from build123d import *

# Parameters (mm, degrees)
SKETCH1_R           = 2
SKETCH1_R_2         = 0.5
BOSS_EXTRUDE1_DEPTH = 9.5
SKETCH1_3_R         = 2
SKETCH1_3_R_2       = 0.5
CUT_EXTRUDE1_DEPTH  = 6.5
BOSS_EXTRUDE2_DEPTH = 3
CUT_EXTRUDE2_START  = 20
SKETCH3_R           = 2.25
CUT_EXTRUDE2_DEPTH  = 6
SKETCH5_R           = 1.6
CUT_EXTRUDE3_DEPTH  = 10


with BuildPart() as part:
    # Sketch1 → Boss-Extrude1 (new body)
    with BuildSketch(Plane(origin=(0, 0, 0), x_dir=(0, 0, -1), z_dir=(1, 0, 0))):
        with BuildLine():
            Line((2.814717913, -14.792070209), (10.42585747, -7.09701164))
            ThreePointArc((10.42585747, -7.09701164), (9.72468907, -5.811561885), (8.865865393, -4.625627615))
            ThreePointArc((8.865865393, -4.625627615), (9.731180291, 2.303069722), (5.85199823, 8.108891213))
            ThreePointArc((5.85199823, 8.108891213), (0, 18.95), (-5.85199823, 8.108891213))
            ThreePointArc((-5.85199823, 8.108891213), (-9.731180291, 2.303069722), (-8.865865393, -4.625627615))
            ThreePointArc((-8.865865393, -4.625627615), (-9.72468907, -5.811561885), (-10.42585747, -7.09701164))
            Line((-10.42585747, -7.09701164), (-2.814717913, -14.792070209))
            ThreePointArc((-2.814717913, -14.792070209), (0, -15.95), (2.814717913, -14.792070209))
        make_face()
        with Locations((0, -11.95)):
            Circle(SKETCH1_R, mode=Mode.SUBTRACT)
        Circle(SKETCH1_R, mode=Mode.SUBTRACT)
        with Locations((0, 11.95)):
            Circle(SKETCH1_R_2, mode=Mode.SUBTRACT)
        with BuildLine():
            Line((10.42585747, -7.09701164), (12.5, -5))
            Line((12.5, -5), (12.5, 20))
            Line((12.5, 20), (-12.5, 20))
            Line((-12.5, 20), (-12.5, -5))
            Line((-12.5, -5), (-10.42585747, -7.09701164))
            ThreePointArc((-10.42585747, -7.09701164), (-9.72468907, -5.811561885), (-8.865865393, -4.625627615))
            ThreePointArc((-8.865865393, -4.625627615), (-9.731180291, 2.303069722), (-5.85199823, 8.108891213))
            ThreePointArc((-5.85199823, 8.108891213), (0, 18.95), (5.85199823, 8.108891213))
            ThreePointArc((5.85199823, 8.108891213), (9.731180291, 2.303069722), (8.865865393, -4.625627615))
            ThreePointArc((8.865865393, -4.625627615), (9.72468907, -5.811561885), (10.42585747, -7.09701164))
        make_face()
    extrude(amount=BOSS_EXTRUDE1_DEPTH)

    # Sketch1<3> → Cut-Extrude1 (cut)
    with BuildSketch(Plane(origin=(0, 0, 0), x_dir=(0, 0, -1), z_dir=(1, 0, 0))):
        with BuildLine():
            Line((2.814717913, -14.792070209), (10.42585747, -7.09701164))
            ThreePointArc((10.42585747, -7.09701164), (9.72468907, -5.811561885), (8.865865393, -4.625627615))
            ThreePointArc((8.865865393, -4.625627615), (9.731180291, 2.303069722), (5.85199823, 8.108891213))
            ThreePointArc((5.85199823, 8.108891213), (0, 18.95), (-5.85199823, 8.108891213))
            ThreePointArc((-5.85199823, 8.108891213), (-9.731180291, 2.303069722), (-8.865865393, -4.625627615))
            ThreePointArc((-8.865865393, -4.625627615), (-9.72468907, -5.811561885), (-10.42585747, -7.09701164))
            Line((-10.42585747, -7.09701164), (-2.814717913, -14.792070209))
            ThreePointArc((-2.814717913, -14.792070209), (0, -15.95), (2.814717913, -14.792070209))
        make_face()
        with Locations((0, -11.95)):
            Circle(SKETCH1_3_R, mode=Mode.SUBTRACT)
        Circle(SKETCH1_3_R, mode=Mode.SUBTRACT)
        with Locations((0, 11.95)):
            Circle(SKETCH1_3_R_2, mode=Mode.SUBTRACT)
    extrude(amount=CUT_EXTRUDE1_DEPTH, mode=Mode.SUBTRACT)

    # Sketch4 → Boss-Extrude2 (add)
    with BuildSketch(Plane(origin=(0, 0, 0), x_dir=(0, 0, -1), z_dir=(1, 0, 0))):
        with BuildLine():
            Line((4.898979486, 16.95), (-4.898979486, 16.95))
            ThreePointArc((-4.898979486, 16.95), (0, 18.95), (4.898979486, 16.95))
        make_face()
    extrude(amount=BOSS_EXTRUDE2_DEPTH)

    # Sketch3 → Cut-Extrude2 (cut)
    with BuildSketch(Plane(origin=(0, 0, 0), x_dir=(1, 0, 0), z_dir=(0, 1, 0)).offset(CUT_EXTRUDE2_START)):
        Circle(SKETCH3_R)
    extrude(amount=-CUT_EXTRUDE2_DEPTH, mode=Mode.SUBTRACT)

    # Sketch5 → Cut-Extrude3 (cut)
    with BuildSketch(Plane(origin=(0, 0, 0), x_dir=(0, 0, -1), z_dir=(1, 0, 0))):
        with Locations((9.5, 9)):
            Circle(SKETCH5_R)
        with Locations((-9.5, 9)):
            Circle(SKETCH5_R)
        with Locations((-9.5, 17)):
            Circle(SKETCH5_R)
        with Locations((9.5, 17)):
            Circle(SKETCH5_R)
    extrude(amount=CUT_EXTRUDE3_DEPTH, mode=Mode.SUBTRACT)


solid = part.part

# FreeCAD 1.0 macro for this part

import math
import FreeCAD as App
import Part
import Sketcher

V = App.Vector
Q = App.Units.Quantity

doc = App.newDocument("Part")
params = doc.addObject("Spreadsheet::Sheet", "Params")
for row, (alias, value) in enumerate([
    ("sketch1_diameter", "4 mm"),
    ("sketch1_diameter2", "1 mm"),
    ("sketch1_radius", "4 mm"),
    ("sketch1_width", "25 mm"),
    ("pad1_length", "9.5 mm"),
    ("sketch2_diameter", "4 mm"),
    ("sketch2_diameter2", "1 mm"),
    ("sketch2_radius", "10 mm"),
    ("sketch2_radius2", "7 mm"),
    ("sketch2_radius3", "4 mm"),
    ("pocket1_length", "6.5 mm"),
    ("sketch3_radius", "7 mm"),
    ("pad2_length", "3 mm"),
    ("sketch4_diameter", "4.5 mm"),
    ("pocket2_length", "6 mm"),
    ("sketch5_diameter", "3.2 mm"),
    ("pocket3_length", "10 mm"),
], start=1):
    params.set(f"A{row}", alias)
    params.set(f"B{row}", "=" + value)
    params.setAlias(f"B{row}", alias)

body = doc.addObject("PartDesign::Body", "Body")

# Sketch on YZ plane
sketch1 = body.newObject("Sketcher::SketchObject", "Sketch")
sketch1.AttachmentSupport = (doc.getObject("YZ_Plane"), [""])
sketch1.MapMode = "FlatFace"
sketch1.addGeometry(Part.LineSegment(V(-14.8, -2.8, 0), V(-7.1, -10.4, 0)), False)
sketch1.addGeometry(Part.LineSegment(V(-7.1, -10.4, 0), V(-5, -12.5, 0)), False)
sketch1.addGeometry(Part.LineSegment(V(-5, -12.5, 0), V(20, -12.5, 0)), False)
sketch1.addGeometry(Part.LineSegment(V(20, -12.5, 0), V(20, 12.5, 0)), False)
sketch1.addGeometry(Part.LineSegment(V(20, 12.5, 0), V(-5, 12.5, 0)), False)
sketch1.addGeometry(Part.LineSegment(V(-5, 12.5, 0), V(-7.1, 10.4, 0)), False)
sketch1.addGeometry(Part.LineSegment(V(-7.1, 10.4, 0), V(-14.8, 2.8, 0)), False)
sketch1.addGeometry(Part.ArcOfCircle(Part.Circle(V(-11.9, 0, 0), V(0, 0, 1), 4), math.radians(135), math.radians(225)), False)
sketch1.addGeometry(Part.Circle(V(-11.9, 0, 0), V(0, 0, 1), 2), False)
sketch1.addGeometry(Part.Circle(V(0, 0, 0), V(0, 0, 1), 2), False)
sketch1.addGeometry(Part.Circle(V(11.9, 0, 0), V(0, 0, 1), 0.5), False)
sketch1.addConstraint(Sketcher.Constraint("Coincident", 0, 2, 1, 1))
sketch1.addConstraint(Sketcher.Constraint("Coincident", 1, 2, 2, 1))
sketch1.addConstraint(Sketcher.Constraint("Coincident", 2, 2, 3, 1))
sketch1.addConstraint(Sketcher.Constraint("Coincident", 3, 2, 4, 1))
sketch1.addConstraint(Sketcher.Constraint("Coincident", 4, 2, 5, 1))
sketch1.addConstraint(Sketcher.Constraint("Coincident", 5, 2, 6, 1))
sketch1.addConstraint(Sketcher.Constraint("Coincident", 6, 2, 7, 1))
sketch1.addConstraint(Sketcher.Constraint("Coincident", 7, 2, 0, 1))
sketch1.addConstraint(Sketcher.Constraint("Horizontal", 2))
sketch1.addConstraint(Sketcher.Constraint("Vertical", 3))
sketch1.addConstraint(Sketcher.Constraint("Horizontal", 4))
sketch1.addConstraint(Sketcher.Constraint("Coincident", 9, 3, -1, 1))
sketch1.addConstraint(Sketcher.Constraint("Coincident", 8, 3, 7, 3))
sketch1.addConstraint(Sketcher.Constraint("Equal", 8, 9))
sketch1.addConstraint(Sketcher.Constraint("Symmetric", 7, 3, 10, 3, -1, 1))
sketch1.addConstraint(Sketcher.Constraint("Symmetric", 1, 2, 4, 2, -1))
sketch1.addConstraint(Sketcher.Constraint("Symmetric", 0, 2, 5, 2, -1))
sketch1.addConstraint(Sketcher.Constraint("Symmetric", 6, 2, 7, 2, -1))
sketch1.addConstraint(Sketcher.Constraint("Parallel", 0, 1))
sketch1.addConstraint(Sketcher.Constraint("Equal", 4, 3))
sketch1.addConstraint(Sketcher.Constraint("Diameter", 8, Q("4 mm")))
sketch1.addConstraint(Sketcher.Constraint("Diameter", 10, Q("1 mm")))
sketch1.addConstraint(Sketcher.Constraint("Radius", 7, Q("4 mm")))
sketch1.addConstraint(Sketcher.Constraint("DistanceX", 2, 1, 2, 2, Q("25 mm")))
sketch1.addConstraint(Sketcher.Constraint("DistanceX", 1, 2, -1, 1, Q("5 mm")))
sketch1.addConstraint(Sketcher.Constraint("DistanceX", 7, 3, 10, 3, Q("23.9 mm")))
sketch1.addConstraint(Sketcher.Constraint("Distance", 0, Q("10.823279 mm")))
sketch1.addConstraint(Sketcher.Constraint("DistanceX", 0, 2, -1, 1, Q("7.097012 mm")))
sketch1.setExpression("Constraints[20]", "Params.sketch1_diameter")
sketch1.setExpression("Constraints[21]", "Params.sketch1_diameter2")
sketch1.setExpression("Constraints[22]", "Params.sketch1_radius")
sketch1.setExpression("Constraints[23]", "Params.sketch1_width")
pad1 = body.newObject("PartDesign::Pad", "Pad")
pad1.Profile = sketch1
pad1.setExpression("Length", "Params.pad1_length")

# Sketch on YZ plane
sketch2 = body.newObject("Sketcher::SketchObject", "Sketch001")
sketch2.AttachmentSupport = (doc.getObject("YZ_Plane"), [""])
sketch2.MapMode = "FlatFace"
sketch2.addGeometry(Part.LineSegment(V(-14.8, -2.8, 0), V(-7.1, -10.4, 0)), False)
sketch2.addGeometry(Part.ArcOfCircle(Part.Circle(V(-12, 0, 0), V(0, 0, 1), 11.5), math.radians(-65.04), math.radians(-50.44)), False)
sketch2.addGeometry(Part.ArcOfCircle(Part.Circle(V(0, 0, 0), V(0, 0, 1), 10), math.radians(-118), math.radians(-36)), False)
sketch2.addGeometry(Part.ArcOfCircle(Part.Circle(V(11.9, 0, 0), V(0, 0, 1), 7), math.radians(-123), math.radians(123)), False)
sketch2.addGeometry(Part.ArcOfCircle(Part.Circle(V(0, 0, 0), V(0, 0, 1), 10), math.radians(36), math.radians(118)), False)
sketch2.addGeometry(Part.ArcOfCircle(Part.Circle(V(-12, 0, 0), V(0, 0, 1), 11.5), math.radians(50.44), math.radians(65.04)), False)
sketch2.addGeometry(Part.LineSegment(V(-7.1, 10.4, 0), V(-14.8, 2.8, 0)), False)
sketch2.addGeometry(Part.ArcOfCircle(Part.Circle(V(-11.9, 0, 0), V(0, 0, 1), 4), math.radians(135), math.radians(225)), False)
sketch2.addGeometry(Part.Circle(V(-11.9, 0, 0), V(0, 0, 1), 2), False)
sketch2.addGeometry(Part.Circle(V(0, 0, 0), V(0, 0, 1), 2), False)
sketch2.addGeometry(Part.Circle(V(11.9, 0, 0), V(0, 0, 1), 0.5), False)
sketch2.addConstraint(Sketcher.Constraint("Coincident", 0, 2, 1, 1))
sketch2.addConstraint(Sketcher.Constraint("Coincident", 1, 2, 2, 1))
sketch2.addConstraint(Sketcher.Constraint("Coincident", 2, 2, 3, 1))
sketch2.addConstraint(Sketcher.Constraint("Coincident", 3, 2, 4, 1))
sketch2.addConstraint(Sketcher.Constraint("Coincident", 4, 2, 5, 1))
sketch2.addConstraint(Sketcher.Constraint("Coincident", 5, 2, 6, 1))
sketch2.addConstraint(Sketcher.Constraint("Coincident", 6, 2, 7, 1))
sketch2.addConstraint(Sketcher.Constraint("Coincident", 7, 2, 0, 1))
sketch2.addConstraint(Sketcher.Constraint("Coincident", 2, 3, -1, 1))
sketch2.addConstraint(Sketcher.Constraint("Coincident", 4, 3, -1, 1))
sketch2.addConstraint(Sketcher.Constraint("Coincident", 9, 3, -1, 1))
sketch2.addConstraint(Sketcher.Constraint("Coincident", 5, 3, 1, 3))
sketch2.addConstraint(Sketcher.Constraint("Coincident", 7, 3, 1, 3))
sketch2.addConstraint(Sketcher.Constraint("Coincident", 8, 3, 1, 3))
sketch2.addConstraint(Sketcher.Constraint("Coincident", 10, 3, 3, 3))
sketch2.addConstraint(Sketcher.Constraint("Equal", 2, 4))
sketch2.addConstraint(Sketcher.Constraint("Equal", 1, 5))
sketch2.addConstraint(Sketcher.Constraint("Equal", 8, 9))
sketch2.addConstraint(Sketcher.Constraint("Symmetric", 1, 3, 3, 3, -1, 1))
sketch2.addConstraint(Sketcher.Constraint("Symmetric", 0, 2, 5, 2, -1))
sketch2.addConstraint(Sketcher.Constraint("Vertical", 6, 2, 7, 2))
sketch2.addConstraint(Sketcher.Constraint("Diameter", 8, Q("4 mm")))
sketch2.addConstraint(Sketcher.Constraint("Diameter", 10, Q("1 mm")))
sketch2.addConstraint(Sketcher.Constraint("Radius", 2, Q("10 mm")))
sketch2.addConstraint(Sketcher.Constraint("Radius", 3, Q("7 mm")))
sketch2.addConstraint(Sketcher.Constraint("Radius", 7, Q("4 mm")))
sketch2.addConstraint(Sketcher.Constraint("Radius", 1, Q("11.5 mm")))
sketch2.addConstraint(Sketcher.Constraint("DistanceX", 1, 3, 3, 3, Q("23.9 mm")))
sketch2.addConstraint(Sketcher.Constraint("Distance", 0, Q("10.823279 mm")))
sketch2.addConstraint(Sketcher.Constraint("DistanceX", 0, 2, -1, 1, Q("7.097012 mm")))
sketch2.setExpression("Constraints[21]", "Params.sketch2_diameter")
sketch2.setExpression("Constraints[22]", "Params.sketch2_diameter2")
sketch2.setExpression("Constraints[23]", "Params.sketch2_radius")
sketch2.setExpression("Constraints[24]", "Params.sketch2_radius2")
sketch2.setExpression("Constraints[25]", "Params.sketch2_radius3")
pocket1 = body.newObject("PartDesign::Pocket", "Pocket")
pocket1.Profile = sketch2
pocket1.setExpression("Length", "Params.pocket1_length")
pocket1.Reversed = True

# Sketch on YZ plane
sketch3 = body.newObject("Sketcher::SketchObject", "Sketch002")
sketch3.AttachmentSupport = (doc.getObject("YZ_Plane"), [""])
sketch3.MapMode = "FlatFace"
sketch3.addGeometry(Part.LineSegment(V(17, 5, 0), V(17, -5, 0)), False)
sketch3.addGeometry(Part.ArcOfCircle(Part.Circle(V(12, 0, 0), V(0, 0, 1), 7), math.radians(-44), math.radians(44)), False)
sketch3.addConstraint(Sketcher.Constraint("Coincident", 0, 1, 1, 2))
sketch3.addConstraint(Sketcher.Constraint("Coincident", 1, 1, 0, 2))
sketch3.addConstraint(Sketcher.Constraint("Vertical", 0))
sketch3.addConstraint(Sketcher.Constraint("PointOnObject", 1, 3, -1))
sketch3.addConstraint(Sketcher.Constraint("Radius", 1, Q("7 mm")))
sketch3.addConstraint(Sketcher.Constraint("DistanceX", 1, 3, 0, 1, Q("5 mm")))
sketch3.addConstraint(Sketcher.Constraint("DistanceX", -1, 1, 1, 3, Q("11.95 mm")))
sketch3.setExpression("Constraints[4]", "Params.sketch3_radius")
pad2 = body.newObject("PartDesign::Pad", "Pad001")
pad2.Profile = sketch3
pad2.setExpression("Length", "Params.pad2_length")

# Sketch on XZ plane
sketch4 = body.newObject("Sketcher::SketchObject", "Sketch003")
sketch4.AttachmentSupport = (doc.getObject("XZ_Plane"), [""])
sketch4.MapMode = "FlatFace"
sketch4.AttachmentOffset = App.Placement(V(0, 0, -20), App.Rotation())
sketch4.addGeometry(Part.Circle(V(0, 0, 0), V(0, 0, 1), 2.2), False)
sketch4.addConstraint(Sketcher.Constraint("Coincident", 0, 3, -1, 1))
sketch4.addConstraint(Sketcher.Constraint("Diameter", 0, Q("4.5 mm")))
sketch4.setExpression("Constraints[1]", "Params.sketch4_diameter")
pocket2 = body.newObject("PartDesign::Pocket", "Pocket001")
pocket2.Profile = sketch4
pocket2.setExpression("Length", "Params.pocket2_length")
pocket2.Reversed = True

# Sketch on YZ plane
sketch5 = body.newObject("Sketcher::SketchObject", "Sketch004")
sketch5.AttachmentSupport = (doc.getObject("YZ_Plane"), [""])
sketch5.MapMode = "FlatFace"
sketch5.addGeometry(Part.Circle(V(9, -9.5, 0), V(0, 0, 1), 1.6), False)
sketch5.addGeometry(Part.Circle(V(9, 9.5, 0), V(0, 0, 1), 1.6), False)
sketch5.addGeometry(Part.Circle(V(17, 9.5, 0), V(0, 0, 1), 1.6), False)
sketch5.addGeometry(Part.Circle(V(17, -9.5, 0), V(0, 0, 1), 1.6), False)
sketch5.addConstraint(Sketcher.Constraint("Equal", 0, 1))
sketch5.addConstraint(Sketcher.Constraint("Equal", 1, 2))
sketch5.addConstraint(Sketcher.Constraint("Equal", 2, 3))
sketch5.addConstraint(Sketcher.Constraint("Symmetric", 0, 3, 1, 3, -1))
sketch5.addConstraint(Sketcher.Constraint("Symmetric", 2, 3, 3, 3, -1))
sketch5.addConstraint(Sketcher.Constraint("Horizontal", 1, 3, 2, 3))
sketch5.addConstraint(Sketcher.Constraint("Diameter", 0, Q("3.2 mm")))
sketch5.addConstraint(Sketcher.Constraint("DistanceX", -1, 1, 0, 3, Q("9 mm")))
sketch5.addConstraint(Sketcher.Constraint("DistanceX", -1, 1, 2, 3, Q("17 mm")))
sketch5.addConstraint(Sketcher.Constraint("DistanceY", 0, 3, 1, 3, Q("19 mm")))
sketch5.setExpression("Constraints[6]", "Params.sketch5_diameter")
pocket3 = body.newObject("PartDesign::Pocket", "Pocket002")
pocket3.Profile = sketch5
pocket3.setExpression("Length", "Params.pocket3_length")
pocket3.Reversed = True

doc.recompute()
